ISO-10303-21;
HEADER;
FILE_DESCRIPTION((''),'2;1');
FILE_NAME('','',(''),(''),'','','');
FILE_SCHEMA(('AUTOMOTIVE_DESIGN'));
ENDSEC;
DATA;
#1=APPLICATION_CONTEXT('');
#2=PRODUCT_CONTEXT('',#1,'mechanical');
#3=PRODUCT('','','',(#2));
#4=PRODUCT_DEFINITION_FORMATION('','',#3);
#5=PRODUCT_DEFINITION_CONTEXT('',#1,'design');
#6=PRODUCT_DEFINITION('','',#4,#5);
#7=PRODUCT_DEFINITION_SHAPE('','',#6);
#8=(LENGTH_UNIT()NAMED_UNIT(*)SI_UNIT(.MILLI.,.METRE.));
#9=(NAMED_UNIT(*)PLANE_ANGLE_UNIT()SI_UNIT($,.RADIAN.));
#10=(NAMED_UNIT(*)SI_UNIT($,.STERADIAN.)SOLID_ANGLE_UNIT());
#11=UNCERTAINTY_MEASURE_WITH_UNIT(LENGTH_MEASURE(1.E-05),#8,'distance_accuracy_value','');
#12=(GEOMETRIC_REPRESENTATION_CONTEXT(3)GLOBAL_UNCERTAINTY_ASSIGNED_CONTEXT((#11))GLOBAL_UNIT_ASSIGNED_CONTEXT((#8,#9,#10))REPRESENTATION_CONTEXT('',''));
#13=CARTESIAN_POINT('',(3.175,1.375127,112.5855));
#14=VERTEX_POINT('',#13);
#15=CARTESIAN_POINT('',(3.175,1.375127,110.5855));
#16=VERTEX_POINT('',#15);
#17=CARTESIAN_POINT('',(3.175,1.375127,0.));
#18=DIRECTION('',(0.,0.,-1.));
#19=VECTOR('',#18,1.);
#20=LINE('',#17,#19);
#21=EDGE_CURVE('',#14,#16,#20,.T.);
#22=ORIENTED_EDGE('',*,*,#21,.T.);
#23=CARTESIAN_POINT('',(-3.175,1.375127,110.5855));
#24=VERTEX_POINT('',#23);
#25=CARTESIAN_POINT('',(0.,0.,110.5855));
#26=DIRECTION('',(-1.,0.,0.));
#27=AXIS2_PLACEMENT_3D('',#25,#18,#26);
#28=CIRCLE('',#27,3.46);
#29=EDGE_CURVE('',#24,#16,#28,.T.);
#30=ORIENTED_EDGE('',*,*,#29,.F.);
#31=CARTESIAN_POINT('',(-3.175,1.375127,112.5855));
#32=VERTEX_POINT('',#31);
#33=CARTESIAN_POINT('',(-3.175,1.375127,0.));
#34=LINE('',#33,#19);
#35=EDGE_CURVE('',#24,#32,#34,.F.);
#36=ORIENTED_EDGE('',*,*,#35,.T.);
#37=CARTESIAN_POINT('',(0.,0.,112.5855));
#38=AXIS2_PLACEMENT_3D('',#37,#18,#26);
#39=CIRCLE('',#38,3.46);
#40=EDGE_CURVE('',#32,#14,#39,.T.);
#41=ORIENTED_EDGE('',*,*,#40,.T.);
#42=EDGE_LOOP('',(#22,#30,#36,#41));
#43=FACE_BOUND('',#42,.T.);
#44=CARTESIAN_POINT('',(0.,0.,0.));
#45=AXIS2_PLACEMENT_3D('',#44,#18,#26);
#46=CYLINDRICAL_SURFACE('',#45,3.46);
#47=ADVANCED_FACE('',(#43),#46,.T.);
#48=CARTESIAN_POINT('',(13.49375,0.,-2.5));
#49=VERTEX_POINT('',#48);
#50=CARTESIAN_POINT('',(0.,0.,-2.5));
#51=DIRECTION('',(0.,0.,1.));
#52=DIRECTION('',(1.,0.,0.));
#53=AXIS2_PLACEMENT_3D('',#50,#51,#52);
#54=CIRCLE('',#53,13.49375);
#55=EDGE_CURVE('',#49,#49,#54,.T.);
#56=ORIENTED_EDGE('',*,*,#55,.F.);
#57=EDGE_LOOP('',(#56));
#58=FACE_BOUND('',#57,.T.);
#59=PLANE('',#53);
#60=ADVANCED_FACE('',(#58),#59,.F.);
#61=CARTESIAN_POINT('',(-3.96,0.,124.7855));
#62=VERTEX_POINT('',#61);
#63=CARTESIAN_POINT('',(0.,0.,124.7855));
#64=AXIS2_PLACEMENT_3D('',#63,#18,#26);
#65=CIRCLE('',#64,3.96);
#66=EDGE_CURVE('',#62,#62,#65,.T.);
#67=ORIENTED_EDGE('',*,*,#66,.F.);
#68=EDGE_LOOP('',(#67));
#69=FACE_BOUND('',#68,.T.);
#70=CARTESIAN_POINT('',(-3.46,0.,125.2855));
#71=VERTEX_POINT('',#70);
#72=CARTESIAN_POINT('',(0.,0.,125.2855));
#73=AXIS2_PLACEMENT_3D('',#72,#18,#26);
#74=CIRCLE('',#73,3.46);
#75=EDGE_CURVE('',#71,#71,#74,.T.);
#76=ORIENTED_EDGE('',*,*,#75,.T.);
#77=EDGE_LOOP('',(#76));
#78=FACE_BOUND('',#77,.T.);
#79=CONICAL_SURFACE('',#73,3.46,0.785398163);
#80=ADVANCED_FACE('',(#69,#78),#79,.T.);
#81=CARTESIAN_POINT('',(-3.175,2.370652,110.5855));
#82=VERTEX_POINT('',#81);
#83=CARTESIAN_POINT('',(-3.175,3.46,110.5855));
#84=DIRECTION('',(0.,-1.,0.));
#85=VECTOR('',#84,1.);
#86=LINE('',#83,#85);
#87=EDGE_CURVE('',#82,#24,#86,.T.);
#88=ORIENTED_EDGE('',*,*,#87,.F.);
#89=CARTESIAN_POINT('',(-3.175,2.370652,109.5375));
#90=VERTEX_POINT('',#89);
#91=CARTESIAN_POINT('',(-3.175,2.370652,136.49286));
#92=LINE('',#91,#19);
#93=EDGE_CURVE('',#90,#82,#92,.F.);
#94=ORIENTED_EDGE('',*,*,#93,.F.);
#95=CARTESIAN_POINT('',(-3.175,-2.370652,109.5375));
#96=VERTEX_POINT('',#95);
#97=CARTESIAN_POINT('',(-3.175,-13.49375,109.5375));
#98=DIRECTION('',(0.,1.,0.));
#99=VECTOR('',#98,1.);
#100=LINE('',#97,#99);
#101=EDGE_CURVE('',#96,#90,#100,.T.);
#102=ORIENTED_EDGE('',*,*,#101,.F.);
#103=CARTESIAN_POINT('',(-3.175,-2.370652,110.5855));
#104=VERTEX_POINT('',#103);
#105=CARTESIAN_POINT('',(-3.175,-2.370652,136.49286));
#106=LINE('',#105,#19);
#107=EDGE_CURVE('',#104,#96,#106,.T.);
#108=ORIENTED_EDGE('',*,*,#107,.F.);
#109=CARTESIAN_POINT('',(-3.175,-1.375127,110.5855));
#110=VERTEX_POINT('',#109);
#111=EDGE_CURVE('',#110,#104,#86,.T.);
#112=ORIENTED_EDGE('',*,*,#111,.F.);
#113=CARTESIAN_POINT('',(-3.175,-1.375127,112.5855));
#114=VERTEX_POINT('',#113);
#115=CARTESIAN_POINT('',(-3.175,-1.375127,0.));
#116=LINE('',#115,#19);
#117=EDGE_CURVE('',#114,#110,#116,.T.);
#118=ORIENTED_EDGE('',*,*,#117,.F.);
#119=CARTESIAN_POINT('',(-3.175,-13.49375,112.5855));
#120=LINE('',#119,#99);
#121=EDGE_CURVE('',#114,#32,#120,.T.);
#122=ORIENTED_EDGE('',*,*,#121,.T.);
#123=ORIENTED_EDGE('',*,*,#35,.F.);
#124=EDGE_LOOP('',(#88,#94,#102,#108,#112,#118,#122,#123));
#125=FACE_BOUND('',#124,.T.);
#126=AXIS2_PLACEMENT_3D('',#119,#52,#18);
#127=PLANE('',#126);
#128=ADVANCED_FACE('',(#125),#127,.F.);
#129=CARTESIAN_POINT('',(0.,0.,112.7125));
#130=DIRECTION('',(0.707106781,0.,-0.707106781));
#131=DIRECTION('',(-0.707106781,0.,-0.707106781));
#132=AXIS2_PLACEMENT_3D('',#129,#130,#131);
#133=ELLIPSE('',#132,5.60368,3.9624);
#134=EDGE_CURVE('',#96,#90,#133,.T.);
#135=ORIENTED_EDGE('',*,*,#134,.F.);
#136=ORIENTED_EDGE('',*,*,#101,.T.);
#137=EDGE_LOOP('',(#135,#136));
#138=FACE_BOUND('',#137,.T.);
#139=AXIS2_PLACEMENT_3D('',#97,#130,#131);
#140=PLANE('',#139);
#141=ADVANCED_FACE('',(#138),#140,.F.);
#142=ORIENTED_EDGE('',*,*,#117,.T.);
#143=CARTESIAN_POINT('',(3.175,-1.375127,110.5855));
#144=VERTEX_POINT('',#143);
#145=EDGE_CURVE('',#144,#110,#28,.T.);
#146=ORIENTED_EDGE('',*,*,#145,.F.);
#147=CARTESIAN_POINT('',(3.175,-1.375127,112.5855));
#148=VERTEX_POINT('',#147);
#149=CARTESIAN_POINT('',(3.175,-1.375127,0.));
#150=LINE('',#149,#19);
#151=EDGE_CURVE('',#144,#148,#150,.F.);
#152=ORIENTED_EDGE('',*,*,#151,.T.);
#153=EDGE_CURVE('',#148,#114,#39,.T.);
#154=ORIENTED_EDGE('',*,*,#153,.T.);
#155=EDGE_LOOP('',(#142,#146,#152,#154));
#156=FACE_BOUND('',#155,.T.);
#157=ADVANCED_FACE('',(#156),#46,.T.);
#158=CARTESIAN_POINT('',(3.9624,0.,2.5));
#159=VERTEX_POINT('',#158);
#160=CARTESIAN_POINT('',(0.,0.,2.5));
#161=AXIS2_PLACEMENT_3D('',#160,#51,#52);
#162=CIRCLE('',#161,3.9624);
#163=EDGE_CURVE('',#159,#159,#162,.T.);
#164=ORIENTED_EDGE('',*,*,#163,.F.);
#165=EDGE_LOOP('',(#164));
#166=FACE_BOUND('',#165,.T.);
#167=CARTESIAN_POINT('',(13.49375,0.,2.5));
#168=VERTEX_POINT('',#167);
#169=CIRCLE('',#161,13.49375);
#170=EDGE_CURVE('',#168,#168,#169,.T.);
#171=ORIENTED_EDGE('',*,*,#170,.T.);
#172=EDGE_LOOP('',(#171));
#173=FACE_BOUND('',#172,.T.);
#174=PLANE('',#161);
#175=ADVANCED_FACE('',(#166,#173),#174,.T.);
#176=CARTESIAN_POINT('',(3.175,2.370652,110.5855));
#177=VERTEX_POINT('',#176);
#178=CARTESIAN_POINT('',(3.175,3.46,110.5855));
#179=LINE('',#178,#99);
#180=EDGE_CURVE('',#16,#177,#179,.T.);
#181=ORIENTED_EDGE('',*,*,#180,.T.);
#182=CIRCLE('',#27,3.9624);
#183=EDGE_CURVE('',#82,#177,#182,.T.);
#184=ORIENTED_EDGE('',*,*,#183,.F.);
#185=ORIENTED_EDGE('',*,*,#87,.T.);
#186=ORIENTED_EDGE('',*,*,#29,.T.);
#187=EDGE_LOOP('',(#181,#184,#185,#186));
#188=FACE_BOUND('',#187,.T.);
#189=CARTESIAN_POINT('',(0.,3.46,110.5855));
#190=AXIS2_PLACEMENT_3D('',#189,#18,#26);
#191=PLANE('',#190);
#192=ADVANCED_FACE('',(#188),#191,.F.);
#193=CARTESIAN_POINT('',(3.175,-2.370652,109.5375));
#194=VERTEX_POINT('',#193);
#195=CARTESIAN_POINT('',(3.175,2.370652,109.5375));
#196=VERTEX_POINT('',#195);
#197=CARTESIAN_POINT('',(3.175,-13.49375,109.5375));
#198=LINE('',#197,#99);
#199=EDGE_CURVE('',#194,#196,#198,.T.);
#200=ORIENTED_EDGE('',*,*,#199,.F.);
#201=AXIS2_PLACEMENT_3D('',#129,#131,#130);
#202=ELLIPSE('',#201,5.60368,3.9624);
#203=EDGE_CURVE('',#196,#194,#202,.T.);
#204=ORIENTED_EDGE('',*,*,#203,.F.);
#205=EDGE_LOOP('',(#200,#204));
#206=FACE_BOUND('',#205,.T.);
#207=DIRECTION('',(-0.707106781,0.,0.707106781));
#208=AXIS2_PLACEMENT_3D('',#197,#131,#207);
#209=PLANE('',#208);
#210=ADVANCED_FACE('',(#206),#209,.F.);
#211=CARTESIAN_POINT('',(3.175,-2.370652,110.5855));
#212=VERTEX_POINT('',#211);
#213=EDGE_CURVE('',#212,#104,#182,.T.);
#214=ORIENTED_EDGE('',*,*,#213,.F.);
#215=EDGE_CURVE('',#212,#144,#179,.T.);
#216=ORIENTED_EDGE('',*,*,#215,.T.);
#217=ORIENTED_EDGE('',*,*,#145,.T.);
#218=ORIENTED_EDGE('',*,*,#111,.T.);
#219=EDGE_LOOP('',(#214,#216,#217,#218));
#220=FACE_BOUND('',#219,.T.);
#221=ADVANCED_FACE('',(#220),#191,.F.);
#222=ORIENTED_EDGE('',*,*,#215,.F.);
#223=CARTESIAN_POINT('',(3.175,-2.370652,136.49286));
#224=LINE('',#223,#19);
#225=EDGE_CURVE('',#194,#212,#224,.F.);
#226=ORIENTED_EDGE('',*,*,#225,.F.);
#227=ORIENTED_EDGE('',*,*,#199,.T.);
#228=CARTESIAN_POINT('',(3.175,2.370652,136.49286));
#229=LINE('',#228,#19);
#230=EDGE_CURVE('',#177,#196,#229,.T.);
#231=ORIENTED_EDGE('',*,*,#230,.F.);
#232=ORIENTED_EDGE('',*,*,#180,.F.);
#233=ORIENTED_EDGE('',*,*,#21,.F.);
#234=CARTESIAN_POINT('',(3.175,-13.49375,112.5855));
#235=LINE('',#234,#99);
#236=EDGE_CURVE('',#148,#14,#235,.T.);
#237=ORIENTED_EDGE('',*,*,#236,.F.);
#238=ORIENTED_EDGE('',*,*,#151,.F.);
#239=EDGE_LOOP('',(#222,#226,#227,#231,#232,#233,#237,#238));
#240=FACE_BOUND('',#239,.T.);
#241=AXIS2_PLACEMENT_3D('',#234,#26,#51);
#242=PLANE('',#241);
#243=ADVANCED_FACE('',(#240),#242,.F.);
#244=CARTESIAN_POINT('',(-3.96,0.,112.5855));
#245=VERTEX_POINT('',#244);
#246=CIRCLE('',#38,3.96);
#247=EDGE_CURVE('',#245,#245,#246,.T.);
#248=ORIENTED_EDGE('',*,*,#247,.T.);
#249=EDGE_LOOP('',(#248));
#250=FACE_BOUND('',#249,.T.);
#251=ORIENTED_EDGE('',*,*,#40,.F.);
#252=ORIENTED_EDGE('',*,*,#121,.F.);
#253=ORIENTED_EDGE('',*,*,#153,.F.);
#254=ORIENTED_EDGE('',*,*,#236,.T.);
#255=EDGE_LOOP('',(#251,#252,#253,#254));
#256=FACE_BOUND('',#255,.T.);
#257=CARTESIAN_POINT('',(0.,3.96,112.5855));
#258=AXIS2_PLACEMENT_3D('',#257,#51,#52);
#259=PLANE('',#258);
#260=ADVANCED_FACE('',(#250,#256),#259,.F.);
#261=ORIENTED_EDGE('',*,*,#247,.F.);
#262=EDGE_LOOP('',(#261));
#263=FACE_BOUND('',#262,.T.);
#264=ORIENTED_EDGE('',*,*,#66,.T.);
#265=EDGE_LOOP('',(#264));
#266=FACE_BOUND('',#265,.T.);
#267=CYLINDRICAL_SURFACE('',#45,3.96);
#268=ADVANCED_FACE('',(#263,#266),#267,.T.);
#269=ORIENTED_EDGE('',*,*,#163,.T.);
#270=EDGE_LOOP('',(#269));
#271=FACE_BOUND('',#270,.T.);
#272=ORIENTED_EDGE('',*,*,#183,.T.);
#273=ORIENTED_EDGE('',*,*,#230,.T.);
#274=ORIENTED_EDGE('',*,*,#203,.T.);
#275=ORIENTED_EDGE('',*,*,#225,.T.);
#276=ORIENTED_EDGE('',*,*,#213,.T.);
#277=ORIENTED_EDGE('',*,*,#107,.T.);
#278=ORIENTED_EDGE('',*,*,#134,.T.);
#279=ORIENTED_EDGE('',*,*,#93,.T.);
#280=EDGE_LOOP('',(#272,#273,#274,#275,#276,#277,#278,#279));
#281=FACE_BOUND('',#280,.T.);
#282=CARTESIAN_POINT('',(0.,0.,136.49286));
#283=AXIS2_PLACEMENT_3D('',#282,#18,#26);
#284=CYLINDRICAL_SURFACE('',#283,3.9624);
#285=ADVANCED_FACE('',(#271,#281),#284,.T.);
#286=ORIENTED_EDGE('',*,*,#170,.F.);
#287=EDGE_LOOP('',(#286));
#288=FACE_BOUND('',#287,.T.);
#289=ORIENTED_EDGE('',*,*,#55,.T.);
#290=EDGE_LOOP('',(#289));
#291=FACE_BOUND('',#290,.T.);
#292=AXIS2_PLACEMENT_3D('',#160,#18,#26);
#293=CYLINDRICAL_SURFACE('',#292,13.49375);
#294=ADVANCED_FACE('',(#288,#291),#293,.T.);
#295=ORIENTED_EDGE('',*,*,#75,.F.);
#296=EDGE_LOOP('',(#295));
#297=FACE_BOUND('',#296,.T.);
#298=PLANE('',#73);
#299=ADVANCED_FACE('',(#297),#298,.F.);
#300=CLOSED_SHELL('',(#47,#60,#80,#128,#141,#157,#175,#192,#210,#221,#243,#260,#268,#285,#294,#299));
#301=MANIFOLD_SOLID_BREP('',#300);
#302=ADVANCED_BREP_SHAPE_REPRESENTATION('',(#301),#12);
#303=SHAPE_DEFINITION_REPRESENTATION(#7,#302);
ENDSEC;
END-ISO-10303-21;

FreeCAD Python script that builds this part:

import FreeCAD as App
import Part
import Sketcher

V = App.Vector
Q = App.Units.Quantity


def add_polygon(sketch, points):
    """Adds a closed chain of lines whose ends are joined by coincident constraints."""
    first, n = sketch.GeometryCount, len(points)
    for a, b in zip(points, points[1:] + points[:1]):
        sketch.addGeometry(Part.LineSegment(App.Vector(*a, 0), App.Vector(*b, 0)), False)
    for i in range(n):
        sketch.addConstraint(Sketcher.Constraint("Coincident", first + i, 2, first + (i + 1) % n, 1))

doc = App.newDocument("Part")
params = doc.addObject("Spreadsheet::Sheet", "Params")
for row, (alias, value) in enumerate([
    ("pad1_length", "125.2855 mm"),
    ("pad2_length", "5 mm"),
    ("sketch3_height", "2 mm"),
    ("sketch3_width", "0.5 mm"),
    ("sketch3_height2", "14.7 mm"),
    ("groove_angle", "360 deg"),
], start=1):
    params.set(f"A{row}", alias)
    params.set(f"B{row}", "=" + value)
    params.setAlias(f"B{row}", alias)

body = doc.addObject("PartDesign::Body", "Body")

# Sketch on XY plane
sketch1 = body.newObject("Sketcher::SketchObject", "Sketch")
sketch1.AttachmentSupport = (doc.getObject("XY_Plane"), [""])
sketch1.MapMode = "FlatFace"
sketch1.addGeometry(Part.Circle(V(0, 0, 0), V(0, 0, 1), 3.9624), False)
sketch1.addConstraint(Sketcher.Constraint("Coincident", 0, 3, -1, 1))
sketch1.addConstraint(Sketcher.Constraint("Diameter", 0, Q("7.9248 mm")))
pad1 = body.newObject("PartDesign::Pad", "Pad")
pad1.Profile = sketch1
pad1.setExpression("Length", "Params.pad1_length")

# Sketch on XY plane
sketch2 = body.newObject("Sketcher::SketchObject", "Sketch001")
sketch2.AttachmentSupport = (doc.getObject("XY_Plane"), [""])
sketch2.MapMode = "FlatFace"
sketch2.addGeometry(Part.Circle(V(0, 0, 0), V(0, 0, 1), 13.49375), False)
sketch2.addConstraint(Sketcher.Constraint("Coincident", 0, 3, -1, 1))
sketch2.addConstraint(Sketcher.Constraint("Diameter", 0, Q("26.9875 mm")))
pad2 = body.newObject("PartDesign::Pad", "Pad001")
pad2.Profile = sketch2
pad2.setExpression("Length", "Params.pad2_length")
pad2.Midplane = True

# Sketch on YZ plane
sketch3 = body.newObject("Sketcher::SketchObject", "Sketch002")
sketch3.AttachmentSupport = (doc.getObject("YZ_Plane"), [""])
sketch3.MapMode = "FlatFace"
add_polygon(sketch3, [(13.49375, 110.5855), (13.49375, 125.2855), (3.46, 125.2855), (3.96, 124.7855), (3.96, 112.5855), (3.46, 112.5855), (3.46, 110.5855)])  # lines 0-6
sketch3.addConstraint(Sketcher.Constraint("Vertical", 0))
sketch3.addConstraint(Sketcher.Constraint("Horizontal", 1))
sketch3.addConstraint(Sketcher.Constraint("Vertical", 3))
sketch3.addConstraint(Sketcher.Constraint("Horizontal", 4))
sketch3.addConstraint(Sketcher.Constraint("Vertical", 5))
sketch3.addConstraint(Sketcher.Constraint("Horizontal", 6))
sketch3.addConstraint(Sketcher.Constraint("Vertical", 1, 2, 4, 2))
sketch3.addConstraint(Sketcher.Constraint("DistanceY", 5, 2, 5, 1, Q("2 mm")))
sketch3.addConstraint(Sketcher.Constraint("Angle", 2, Q("-45 deg")))
sketch3.addConstraint(Sketcher.Constraint("DistanceX", 4, 2, 4, 1, Q("0.5 mm")))
sketch3.addConstraint(Sketcher.Constraint("DistanceY", 0, 1, 0, 2, Q("14.7 mm")))
sketch3.addConstraint(Sketcher.Constraint("DistanceX", -1, 1, 1, 2, Q("3.46 mm")))
sketch3.addConstraint(Sketcher.Constraint("DistanceX", 1, 2, 1, 1, Q("10.03375 mm")))
sketch3.addConstraint(Sketcher.Constraint("DistanceY", -1, 1, 0, 2, Q("125.2855 mm")))
sketch3.setExpression("Constraints[14]", "Params.sketch3_height")
sketch3.setExpression("Constraints[16]", "Params.sketch3_width")
sketch3.setExpression("Constraints[17]", "Params.sketch3_height2")
groove = body.newObject("PartDesign::Groove", "Groove")
groove.Profile = sketch3
groove.ReferenceAxis = (sketch3, ["V_Axis"])
groove.setExpression("Angle", "Params.groove_angle")

# Sketch on XZ plane
sketch4 = body.newObject("Sketcher::SketchObject", "Sketch003")
sketch4.AttachmentSupport = (doc.getObject("XZ_Plane"), [""])
sketch4.MapMode = "FlatFace"
add_polygon(sketch4, [(3.175, 112.5855), (3.9624, 112.5855), (3.9624, 108.7501), (3.175, 109.5375)])  # lines 0-3
add_polygon(sketch4, [(-3.9624, 108.7501), (-3.9624, 112.5855), (-3.175, 112.5855), (-3.175, 109.5375)])  # lines 4-7
sketch4.addConstraint(Sketcher.Constraint("Horizontal", 0))
sketch4.addConstraint(Sketcher.Constraint("Vertical", 1))
sketch4.addConstraint(Sketcher.Constraint("Vertical", 3))
sketch4.addConstraint(Sketcher.Constraint("Vertical", 4))
sketch4.addConstraint(Sketcher.Constraint("Horizontal", 5))
sketch4.addConstraint(Sketcher.Constraint("Vertical", 6))
sketch4.addConstraint(Sketcher.Constraint("Symmetric", 0, 2, 4, 2, -2))
sketch4.addConstraint(Sketcher.Constraint("Symmetric", 2, 2, 6, 2, -2))
sketch4.addConstraint(Sketcher.Constraint("Perpendicular", 2, 7))
sketch4.addConstraint(Sketcher.Constraint("Horizontal", 1, 2, 7, 2))
sketch4.addConstraint(Sketcher.Constraint("DistanceY", 3, 1, 3, 2, Q("3.048 mm")))
sketch4.addConstraint(Sketcher.Constraint("DistanceX", 5, 2, 3, 2, Q("6.35 mm")))
sketch4.addConstraint(Sketcher.Constraint("DistanceX", 0, 1, 0, 2, Q("0.7874 mm")))
sketch4.addConstraint(Sketcher.Constraint("DistanceY", -1, 1, 0, 2, Q("112.5855 mm")))
pocket1 = body.newObject("PartDesign::Pocket", "Pocket")
pocket1.Profile = sketch4
pocket1.Type = "ThroughAll"
pocket1.Midplane = True

doc.recompute()
